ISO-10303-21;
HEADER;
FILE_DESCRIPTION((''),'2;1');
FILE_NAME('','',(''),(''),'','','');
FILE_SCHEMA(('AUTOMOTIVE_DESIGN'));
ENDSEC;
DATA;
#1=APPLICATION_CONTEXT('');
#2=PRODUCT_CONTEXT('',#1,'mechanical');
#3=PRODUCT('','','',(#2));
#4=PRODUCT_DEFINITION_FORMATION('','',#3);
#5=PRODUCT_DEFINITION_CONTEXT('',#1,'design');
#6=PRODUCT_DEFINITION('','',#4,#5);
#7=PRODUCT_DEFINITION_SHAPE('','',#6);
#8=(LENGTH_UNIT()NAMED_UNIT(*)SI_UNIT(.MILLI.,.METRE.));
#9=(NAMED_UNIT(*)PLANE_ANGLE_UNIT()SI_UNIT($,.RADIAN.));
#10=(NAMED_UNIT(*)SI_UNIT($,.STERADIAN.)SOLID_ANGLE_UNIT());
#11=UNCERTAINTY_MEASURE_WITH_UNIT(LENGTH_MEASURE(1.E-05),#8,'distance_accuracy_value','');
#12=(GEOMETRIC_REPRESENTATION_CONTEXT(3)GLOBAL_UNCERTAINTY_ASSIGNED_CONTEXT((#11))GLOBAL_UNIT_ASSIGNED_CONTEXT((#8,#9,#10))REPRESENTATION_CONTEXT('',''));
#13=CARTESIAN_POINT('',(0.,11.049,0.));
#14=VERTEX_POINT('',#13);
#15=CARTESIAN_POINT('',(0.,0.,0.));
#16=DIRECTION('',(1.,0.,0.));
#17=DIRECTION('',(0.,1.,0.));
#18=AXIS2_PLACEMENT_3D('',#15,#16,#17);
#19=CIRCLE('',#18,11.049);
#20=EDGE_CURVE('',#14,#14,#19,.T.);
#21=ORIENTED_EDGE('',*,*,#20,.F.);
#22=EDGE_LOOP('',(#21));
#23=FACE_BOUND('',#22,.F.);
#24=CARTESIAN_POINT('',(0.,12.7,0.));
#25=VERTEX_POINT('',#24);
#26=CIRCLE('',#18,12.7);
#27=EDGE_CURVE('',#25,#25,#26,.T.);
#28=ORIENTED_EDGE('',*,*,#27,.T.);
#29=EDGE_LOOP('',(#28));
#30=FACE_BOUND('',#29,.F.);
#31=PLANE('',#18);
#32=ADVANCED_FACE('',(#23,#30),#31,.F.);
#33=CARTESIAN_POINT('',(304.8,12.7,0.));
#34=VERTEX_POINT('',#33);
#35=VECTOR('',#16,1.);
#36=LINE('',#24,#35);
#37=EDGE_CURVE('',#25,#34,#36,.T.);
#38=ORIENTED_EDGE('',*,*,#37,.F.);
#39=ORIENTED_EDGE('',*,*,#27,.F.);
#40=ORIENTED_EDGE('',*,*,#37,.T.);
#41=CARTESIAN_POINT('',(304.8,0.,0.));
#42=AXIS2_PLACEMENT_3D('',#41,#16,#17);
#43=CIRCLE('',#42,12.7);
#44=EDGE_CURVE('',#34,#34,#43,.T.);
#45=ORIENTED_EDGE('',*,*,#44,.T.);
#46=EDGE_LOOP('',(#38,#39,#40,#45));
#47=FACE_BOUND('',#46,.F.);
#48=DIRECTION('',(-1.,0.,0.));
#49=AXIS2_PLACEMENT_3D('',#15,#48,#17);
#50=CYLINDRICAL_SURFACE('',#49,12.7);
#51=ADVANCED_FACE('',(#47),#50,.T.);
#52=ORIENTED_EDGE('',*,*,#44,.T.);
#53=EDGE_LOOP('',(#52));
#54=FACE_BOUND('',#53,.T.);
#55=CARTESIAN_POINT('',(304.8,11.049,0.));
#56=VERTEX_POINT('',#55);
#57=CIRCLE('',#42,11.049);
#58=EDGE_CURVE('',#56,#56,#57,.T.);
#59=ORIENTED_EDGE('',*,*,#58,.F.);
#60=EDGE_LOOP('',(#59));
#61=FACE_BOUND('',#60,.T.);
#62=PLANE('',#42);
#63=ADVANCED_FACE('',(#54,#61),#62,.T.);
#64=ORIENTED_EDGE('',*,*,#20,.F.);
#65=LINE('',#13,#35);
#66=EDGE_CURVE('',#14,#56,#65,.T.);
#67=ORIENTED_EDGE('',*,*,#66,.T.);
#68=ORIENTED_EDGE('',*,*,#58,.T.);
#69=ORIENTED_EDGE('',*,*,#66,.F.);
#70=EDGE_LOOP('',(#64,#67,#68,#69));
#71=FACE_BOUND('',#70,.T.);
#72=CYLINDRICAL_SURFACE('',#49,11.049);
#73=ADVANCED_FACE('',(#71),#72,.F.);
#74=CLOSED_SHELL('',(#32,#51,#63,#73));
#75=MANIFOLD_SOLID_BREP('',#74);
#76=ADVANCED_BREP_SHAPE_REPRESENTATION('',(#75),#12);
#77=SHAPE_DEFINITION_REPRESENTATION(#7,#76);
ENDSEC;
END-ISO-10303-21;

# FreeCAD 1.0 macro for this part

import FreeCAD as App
import Part
import Sketcher
from FreeCAD import Vector
Q = App.Units.Quantity

doc = App.newDocument("Part")
body = doc.addObject("PartDesign::Body", "Body")

# Sketch on YZ plane
sketch1 = body.newObject("Sketcher::SketchObject", "Sketch")
sketch1.AttachmentSupport = (doc.getObject("YZ_Plane"), [""])
sketch1.MapMode = "FlatFace"
sketch1.addGeometry([
    Part.Circle(Vector(0, 0, 0), Vector(0, 0, 1), 13),
    Part.Circle(Vector(0, 0, 0), Vector(0, 0, 1), 11),
], False)
sketch1.addConstraint([
    Sketcher.Constraint("Coincident", 0, 3, -1, 1),
    Sketcher.Constraint("Coincident", 1, 3, -1, 1),
    Sketcher.Constraint("Diameter", 0, Q("1 in")),
    Sketcher.Constraint("Diameter", 1, Q("0.87 in")),
])
pad1 = body.newObject("PartDesign::Pad", "Pad")
pad1.Profile = sketch1
pad1.Length = Q("12 in")

doc.recompute()
